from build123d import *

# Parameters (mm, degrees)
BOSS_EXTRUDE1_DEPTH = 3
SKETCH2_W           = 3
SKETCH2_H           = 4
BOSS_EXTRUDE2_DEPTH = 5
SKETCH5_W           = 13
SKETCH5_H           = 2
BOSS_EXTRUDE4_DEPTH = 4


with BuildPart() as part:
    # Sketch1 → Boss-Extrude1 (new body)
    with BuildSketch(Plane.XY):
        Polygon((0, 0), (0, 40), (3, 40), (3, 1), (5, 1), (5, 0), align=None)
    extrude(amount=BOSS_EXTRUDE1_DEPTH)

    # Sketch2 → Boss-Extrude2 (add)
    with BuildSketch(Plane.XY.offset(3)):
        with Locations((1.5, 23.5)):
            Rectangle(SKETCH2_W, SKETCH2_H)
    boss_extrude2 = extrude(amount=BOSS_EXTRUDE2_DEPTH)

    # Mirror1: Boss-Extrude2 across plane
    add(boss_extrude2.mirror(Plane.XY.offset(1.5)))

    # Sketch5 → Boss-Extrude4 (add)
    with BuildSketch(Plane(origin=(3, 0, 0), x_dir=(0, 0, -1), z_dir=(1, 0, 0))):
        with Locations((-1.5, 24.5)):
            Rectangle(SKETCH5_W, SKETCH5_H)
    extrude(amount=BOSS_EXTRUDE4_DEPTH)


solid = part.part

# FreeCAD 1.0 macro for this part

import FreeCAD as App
import Part
import Sketcher
Q = App.Units.Quantity


def add_polygon(sketch, points):
    """Adds a closed chain of lines whose ends are joined by coincident constraints."""
    first, n = sketch.GeometryCount, len(points)
    for a, b in zip(points, points[1:] + points[:1]):
        sketch.addGeometry(Part.LineSegment(App.Vector(*a, 0), App.Vector(*b, 0)), False)
    for i in range(n):
        sketch.addConstraint(Sketcher.Constraint("Coincident", first + i, 2, first + (i + 1) % n, 1))

doc = App.newDocument("Part")
body = doc.addObject("PartDesign::Body", "Body")

# Sketch on XY plane
sketch1 = doc.addObject("Sketcher::SketchObject", "Sketch")
body.addObject(sketch1)
sketch1.AttachmentSupport = (doc.XY_Plane, [""])
sketch1.MapMode = "FlatFace"
add_polygon(sketch1, [(0, 40), (0, 0), (5, 0), (5, 1), (3, 1), (3, 40)])  # lines 0-5
sketch1.addConstraint([
    Sketcher.Constraint("Vertical", 0),
    Sketcher.Constraint("Horizontal", 1),
    Sketcher.Constraint("Vertical", 2),
    Sketcher.Constraint("Horizontal", 3),
    Sketcher.Constraint("Vertical", 4),
    Sketcher.Constraint("Horizontal", 5),
    Sketcher.Constraint("Coincident", 0, 2, -1, 1),
    Sketcher.Constraint("DistanceX", 1, 1, 1, 2, Q("5 mm")),
    Sketcher.Constraint("DistanceX", 3, 2, 3, 1, Q("2 mm")),
    Sketcher.Constraint("DistanceY", 0, 2, 0, 1, Q("40 mm")),
    Sketcher.Constraint("DistanceY", 2, 1, 2, 2, Q("1 mm")),
])
pad1 = doc.addObject("PartDesign::Pad", "Pad")
body.addObject(pad1)
pad1.Profile = sketch1
pad1.Length = 3

# Sketch on XY plane
sketch2 = doc.addObject("Sketcher::SketchObject", "Sketch001")
body.addObject(sketch2)
sketch2.AttachmentSupport = (doc.XY_Plane, [""])
sketch2.MapMode = "FlatFace"
sketch2.AttachmentOffset = App.Placement(App.Vector(0, 0, 3), App.Rotation())
add_polygon(sketch2, [(0, 25.5), (0, 21.5), (3, 21.5), (3, 25.5)])  # lines 0-3
sketch2.addConstraint([
    Sketcher.Constraint("Vertical", 0),
    Sketcher.Constraint("Horizontal", 1),
    Sketcher.Constraint("Vertical", 2),
    Sketcher.Constraint("Horizontal", 3),
    Sketcher.Constraint("PointOnObject", 0, 2, -2),
    Sketcher.Constraint("DistanceX", 1, 1, 1, 2, Q("3 mm")),
    Sketcher.Constraint("DistanceY", 0, 2, 0, 1, Q("4 mm")),
    Sketcher.Constraint("DistanceY", -1, 1, 0, 2, Q("21.5 mm")),
])
pad2 = doc.addObject("PartDesign::Pad", "Pad001")
body.addObject(pad2)
pad2.Profile = sketch2
pad2.Length = 5
doc.recompute()

datumplane = doc.addObject("PartDesign::Plane", "DatumPlane")
body.addObject(datumplane)
datumplane.AttachmentSupport = (doc.XY_Plane, [""])
datumplane.MapMode = "FlatFace"
datumplane.AttachmentOffset = App.Placement(App.Vector(0, 0, 1.5), App.Rotation())
mirrored = doc.addObject("PartDesign::Mirrored", "Mirrored")
body.addObject(mirrored)
mirrored.Originals = [pad2]
mirrored.MirrorPlane = (datumplane, [""])
body.Tip = mirrored

# Sketch on YZ plane
sketch3 = doc.addObject("Sketcher::SketchObject", "Sketch002")
body.addObject(sketch3)
sketch3.AttachmentSupport = (doc.YZ_Plane, [""])
sketch3.MapMode = "FlatFace"
sketch3.AttachmentOffset = App.Placement(App.Vector(0, 0, 3), App.Rotation())
add_polygon(sketch3, [(25.5, 8), (23.5, 8), (23.5, -5), (25.5, -5)])  # lines 0-3
sketch3.addConstraint([
    Sketcher.Constraint("Horizontal", 0),
    Sketcher.Constraint("Vertical", 1),
    Sketcher.Constraint("Horizontal", 2),
    Sketcher.Constraint("Vertical", 3),
    Sketcher.Constraint("DistanceX", 0, 2, 0, 1, Q("2 mm")),
    Sketcher.Constraint("DistanceY", 1, 2, 1, 1, Q("13 mm")),
    Sketcher.Constraint("DistanceY", -1, 1, 0, 2, Q("8 mm")),
    Sketcher.Constraint("DistanceX", -1, 1, 0, 2, Q("23.5 mm")),
])
pad3 = doc.addObject("PartDesign::Pad", "Pad002")
body.addObject(pad3)
pad3.Profile = sketch3
pad3.Length = 4

doc.recompute()
